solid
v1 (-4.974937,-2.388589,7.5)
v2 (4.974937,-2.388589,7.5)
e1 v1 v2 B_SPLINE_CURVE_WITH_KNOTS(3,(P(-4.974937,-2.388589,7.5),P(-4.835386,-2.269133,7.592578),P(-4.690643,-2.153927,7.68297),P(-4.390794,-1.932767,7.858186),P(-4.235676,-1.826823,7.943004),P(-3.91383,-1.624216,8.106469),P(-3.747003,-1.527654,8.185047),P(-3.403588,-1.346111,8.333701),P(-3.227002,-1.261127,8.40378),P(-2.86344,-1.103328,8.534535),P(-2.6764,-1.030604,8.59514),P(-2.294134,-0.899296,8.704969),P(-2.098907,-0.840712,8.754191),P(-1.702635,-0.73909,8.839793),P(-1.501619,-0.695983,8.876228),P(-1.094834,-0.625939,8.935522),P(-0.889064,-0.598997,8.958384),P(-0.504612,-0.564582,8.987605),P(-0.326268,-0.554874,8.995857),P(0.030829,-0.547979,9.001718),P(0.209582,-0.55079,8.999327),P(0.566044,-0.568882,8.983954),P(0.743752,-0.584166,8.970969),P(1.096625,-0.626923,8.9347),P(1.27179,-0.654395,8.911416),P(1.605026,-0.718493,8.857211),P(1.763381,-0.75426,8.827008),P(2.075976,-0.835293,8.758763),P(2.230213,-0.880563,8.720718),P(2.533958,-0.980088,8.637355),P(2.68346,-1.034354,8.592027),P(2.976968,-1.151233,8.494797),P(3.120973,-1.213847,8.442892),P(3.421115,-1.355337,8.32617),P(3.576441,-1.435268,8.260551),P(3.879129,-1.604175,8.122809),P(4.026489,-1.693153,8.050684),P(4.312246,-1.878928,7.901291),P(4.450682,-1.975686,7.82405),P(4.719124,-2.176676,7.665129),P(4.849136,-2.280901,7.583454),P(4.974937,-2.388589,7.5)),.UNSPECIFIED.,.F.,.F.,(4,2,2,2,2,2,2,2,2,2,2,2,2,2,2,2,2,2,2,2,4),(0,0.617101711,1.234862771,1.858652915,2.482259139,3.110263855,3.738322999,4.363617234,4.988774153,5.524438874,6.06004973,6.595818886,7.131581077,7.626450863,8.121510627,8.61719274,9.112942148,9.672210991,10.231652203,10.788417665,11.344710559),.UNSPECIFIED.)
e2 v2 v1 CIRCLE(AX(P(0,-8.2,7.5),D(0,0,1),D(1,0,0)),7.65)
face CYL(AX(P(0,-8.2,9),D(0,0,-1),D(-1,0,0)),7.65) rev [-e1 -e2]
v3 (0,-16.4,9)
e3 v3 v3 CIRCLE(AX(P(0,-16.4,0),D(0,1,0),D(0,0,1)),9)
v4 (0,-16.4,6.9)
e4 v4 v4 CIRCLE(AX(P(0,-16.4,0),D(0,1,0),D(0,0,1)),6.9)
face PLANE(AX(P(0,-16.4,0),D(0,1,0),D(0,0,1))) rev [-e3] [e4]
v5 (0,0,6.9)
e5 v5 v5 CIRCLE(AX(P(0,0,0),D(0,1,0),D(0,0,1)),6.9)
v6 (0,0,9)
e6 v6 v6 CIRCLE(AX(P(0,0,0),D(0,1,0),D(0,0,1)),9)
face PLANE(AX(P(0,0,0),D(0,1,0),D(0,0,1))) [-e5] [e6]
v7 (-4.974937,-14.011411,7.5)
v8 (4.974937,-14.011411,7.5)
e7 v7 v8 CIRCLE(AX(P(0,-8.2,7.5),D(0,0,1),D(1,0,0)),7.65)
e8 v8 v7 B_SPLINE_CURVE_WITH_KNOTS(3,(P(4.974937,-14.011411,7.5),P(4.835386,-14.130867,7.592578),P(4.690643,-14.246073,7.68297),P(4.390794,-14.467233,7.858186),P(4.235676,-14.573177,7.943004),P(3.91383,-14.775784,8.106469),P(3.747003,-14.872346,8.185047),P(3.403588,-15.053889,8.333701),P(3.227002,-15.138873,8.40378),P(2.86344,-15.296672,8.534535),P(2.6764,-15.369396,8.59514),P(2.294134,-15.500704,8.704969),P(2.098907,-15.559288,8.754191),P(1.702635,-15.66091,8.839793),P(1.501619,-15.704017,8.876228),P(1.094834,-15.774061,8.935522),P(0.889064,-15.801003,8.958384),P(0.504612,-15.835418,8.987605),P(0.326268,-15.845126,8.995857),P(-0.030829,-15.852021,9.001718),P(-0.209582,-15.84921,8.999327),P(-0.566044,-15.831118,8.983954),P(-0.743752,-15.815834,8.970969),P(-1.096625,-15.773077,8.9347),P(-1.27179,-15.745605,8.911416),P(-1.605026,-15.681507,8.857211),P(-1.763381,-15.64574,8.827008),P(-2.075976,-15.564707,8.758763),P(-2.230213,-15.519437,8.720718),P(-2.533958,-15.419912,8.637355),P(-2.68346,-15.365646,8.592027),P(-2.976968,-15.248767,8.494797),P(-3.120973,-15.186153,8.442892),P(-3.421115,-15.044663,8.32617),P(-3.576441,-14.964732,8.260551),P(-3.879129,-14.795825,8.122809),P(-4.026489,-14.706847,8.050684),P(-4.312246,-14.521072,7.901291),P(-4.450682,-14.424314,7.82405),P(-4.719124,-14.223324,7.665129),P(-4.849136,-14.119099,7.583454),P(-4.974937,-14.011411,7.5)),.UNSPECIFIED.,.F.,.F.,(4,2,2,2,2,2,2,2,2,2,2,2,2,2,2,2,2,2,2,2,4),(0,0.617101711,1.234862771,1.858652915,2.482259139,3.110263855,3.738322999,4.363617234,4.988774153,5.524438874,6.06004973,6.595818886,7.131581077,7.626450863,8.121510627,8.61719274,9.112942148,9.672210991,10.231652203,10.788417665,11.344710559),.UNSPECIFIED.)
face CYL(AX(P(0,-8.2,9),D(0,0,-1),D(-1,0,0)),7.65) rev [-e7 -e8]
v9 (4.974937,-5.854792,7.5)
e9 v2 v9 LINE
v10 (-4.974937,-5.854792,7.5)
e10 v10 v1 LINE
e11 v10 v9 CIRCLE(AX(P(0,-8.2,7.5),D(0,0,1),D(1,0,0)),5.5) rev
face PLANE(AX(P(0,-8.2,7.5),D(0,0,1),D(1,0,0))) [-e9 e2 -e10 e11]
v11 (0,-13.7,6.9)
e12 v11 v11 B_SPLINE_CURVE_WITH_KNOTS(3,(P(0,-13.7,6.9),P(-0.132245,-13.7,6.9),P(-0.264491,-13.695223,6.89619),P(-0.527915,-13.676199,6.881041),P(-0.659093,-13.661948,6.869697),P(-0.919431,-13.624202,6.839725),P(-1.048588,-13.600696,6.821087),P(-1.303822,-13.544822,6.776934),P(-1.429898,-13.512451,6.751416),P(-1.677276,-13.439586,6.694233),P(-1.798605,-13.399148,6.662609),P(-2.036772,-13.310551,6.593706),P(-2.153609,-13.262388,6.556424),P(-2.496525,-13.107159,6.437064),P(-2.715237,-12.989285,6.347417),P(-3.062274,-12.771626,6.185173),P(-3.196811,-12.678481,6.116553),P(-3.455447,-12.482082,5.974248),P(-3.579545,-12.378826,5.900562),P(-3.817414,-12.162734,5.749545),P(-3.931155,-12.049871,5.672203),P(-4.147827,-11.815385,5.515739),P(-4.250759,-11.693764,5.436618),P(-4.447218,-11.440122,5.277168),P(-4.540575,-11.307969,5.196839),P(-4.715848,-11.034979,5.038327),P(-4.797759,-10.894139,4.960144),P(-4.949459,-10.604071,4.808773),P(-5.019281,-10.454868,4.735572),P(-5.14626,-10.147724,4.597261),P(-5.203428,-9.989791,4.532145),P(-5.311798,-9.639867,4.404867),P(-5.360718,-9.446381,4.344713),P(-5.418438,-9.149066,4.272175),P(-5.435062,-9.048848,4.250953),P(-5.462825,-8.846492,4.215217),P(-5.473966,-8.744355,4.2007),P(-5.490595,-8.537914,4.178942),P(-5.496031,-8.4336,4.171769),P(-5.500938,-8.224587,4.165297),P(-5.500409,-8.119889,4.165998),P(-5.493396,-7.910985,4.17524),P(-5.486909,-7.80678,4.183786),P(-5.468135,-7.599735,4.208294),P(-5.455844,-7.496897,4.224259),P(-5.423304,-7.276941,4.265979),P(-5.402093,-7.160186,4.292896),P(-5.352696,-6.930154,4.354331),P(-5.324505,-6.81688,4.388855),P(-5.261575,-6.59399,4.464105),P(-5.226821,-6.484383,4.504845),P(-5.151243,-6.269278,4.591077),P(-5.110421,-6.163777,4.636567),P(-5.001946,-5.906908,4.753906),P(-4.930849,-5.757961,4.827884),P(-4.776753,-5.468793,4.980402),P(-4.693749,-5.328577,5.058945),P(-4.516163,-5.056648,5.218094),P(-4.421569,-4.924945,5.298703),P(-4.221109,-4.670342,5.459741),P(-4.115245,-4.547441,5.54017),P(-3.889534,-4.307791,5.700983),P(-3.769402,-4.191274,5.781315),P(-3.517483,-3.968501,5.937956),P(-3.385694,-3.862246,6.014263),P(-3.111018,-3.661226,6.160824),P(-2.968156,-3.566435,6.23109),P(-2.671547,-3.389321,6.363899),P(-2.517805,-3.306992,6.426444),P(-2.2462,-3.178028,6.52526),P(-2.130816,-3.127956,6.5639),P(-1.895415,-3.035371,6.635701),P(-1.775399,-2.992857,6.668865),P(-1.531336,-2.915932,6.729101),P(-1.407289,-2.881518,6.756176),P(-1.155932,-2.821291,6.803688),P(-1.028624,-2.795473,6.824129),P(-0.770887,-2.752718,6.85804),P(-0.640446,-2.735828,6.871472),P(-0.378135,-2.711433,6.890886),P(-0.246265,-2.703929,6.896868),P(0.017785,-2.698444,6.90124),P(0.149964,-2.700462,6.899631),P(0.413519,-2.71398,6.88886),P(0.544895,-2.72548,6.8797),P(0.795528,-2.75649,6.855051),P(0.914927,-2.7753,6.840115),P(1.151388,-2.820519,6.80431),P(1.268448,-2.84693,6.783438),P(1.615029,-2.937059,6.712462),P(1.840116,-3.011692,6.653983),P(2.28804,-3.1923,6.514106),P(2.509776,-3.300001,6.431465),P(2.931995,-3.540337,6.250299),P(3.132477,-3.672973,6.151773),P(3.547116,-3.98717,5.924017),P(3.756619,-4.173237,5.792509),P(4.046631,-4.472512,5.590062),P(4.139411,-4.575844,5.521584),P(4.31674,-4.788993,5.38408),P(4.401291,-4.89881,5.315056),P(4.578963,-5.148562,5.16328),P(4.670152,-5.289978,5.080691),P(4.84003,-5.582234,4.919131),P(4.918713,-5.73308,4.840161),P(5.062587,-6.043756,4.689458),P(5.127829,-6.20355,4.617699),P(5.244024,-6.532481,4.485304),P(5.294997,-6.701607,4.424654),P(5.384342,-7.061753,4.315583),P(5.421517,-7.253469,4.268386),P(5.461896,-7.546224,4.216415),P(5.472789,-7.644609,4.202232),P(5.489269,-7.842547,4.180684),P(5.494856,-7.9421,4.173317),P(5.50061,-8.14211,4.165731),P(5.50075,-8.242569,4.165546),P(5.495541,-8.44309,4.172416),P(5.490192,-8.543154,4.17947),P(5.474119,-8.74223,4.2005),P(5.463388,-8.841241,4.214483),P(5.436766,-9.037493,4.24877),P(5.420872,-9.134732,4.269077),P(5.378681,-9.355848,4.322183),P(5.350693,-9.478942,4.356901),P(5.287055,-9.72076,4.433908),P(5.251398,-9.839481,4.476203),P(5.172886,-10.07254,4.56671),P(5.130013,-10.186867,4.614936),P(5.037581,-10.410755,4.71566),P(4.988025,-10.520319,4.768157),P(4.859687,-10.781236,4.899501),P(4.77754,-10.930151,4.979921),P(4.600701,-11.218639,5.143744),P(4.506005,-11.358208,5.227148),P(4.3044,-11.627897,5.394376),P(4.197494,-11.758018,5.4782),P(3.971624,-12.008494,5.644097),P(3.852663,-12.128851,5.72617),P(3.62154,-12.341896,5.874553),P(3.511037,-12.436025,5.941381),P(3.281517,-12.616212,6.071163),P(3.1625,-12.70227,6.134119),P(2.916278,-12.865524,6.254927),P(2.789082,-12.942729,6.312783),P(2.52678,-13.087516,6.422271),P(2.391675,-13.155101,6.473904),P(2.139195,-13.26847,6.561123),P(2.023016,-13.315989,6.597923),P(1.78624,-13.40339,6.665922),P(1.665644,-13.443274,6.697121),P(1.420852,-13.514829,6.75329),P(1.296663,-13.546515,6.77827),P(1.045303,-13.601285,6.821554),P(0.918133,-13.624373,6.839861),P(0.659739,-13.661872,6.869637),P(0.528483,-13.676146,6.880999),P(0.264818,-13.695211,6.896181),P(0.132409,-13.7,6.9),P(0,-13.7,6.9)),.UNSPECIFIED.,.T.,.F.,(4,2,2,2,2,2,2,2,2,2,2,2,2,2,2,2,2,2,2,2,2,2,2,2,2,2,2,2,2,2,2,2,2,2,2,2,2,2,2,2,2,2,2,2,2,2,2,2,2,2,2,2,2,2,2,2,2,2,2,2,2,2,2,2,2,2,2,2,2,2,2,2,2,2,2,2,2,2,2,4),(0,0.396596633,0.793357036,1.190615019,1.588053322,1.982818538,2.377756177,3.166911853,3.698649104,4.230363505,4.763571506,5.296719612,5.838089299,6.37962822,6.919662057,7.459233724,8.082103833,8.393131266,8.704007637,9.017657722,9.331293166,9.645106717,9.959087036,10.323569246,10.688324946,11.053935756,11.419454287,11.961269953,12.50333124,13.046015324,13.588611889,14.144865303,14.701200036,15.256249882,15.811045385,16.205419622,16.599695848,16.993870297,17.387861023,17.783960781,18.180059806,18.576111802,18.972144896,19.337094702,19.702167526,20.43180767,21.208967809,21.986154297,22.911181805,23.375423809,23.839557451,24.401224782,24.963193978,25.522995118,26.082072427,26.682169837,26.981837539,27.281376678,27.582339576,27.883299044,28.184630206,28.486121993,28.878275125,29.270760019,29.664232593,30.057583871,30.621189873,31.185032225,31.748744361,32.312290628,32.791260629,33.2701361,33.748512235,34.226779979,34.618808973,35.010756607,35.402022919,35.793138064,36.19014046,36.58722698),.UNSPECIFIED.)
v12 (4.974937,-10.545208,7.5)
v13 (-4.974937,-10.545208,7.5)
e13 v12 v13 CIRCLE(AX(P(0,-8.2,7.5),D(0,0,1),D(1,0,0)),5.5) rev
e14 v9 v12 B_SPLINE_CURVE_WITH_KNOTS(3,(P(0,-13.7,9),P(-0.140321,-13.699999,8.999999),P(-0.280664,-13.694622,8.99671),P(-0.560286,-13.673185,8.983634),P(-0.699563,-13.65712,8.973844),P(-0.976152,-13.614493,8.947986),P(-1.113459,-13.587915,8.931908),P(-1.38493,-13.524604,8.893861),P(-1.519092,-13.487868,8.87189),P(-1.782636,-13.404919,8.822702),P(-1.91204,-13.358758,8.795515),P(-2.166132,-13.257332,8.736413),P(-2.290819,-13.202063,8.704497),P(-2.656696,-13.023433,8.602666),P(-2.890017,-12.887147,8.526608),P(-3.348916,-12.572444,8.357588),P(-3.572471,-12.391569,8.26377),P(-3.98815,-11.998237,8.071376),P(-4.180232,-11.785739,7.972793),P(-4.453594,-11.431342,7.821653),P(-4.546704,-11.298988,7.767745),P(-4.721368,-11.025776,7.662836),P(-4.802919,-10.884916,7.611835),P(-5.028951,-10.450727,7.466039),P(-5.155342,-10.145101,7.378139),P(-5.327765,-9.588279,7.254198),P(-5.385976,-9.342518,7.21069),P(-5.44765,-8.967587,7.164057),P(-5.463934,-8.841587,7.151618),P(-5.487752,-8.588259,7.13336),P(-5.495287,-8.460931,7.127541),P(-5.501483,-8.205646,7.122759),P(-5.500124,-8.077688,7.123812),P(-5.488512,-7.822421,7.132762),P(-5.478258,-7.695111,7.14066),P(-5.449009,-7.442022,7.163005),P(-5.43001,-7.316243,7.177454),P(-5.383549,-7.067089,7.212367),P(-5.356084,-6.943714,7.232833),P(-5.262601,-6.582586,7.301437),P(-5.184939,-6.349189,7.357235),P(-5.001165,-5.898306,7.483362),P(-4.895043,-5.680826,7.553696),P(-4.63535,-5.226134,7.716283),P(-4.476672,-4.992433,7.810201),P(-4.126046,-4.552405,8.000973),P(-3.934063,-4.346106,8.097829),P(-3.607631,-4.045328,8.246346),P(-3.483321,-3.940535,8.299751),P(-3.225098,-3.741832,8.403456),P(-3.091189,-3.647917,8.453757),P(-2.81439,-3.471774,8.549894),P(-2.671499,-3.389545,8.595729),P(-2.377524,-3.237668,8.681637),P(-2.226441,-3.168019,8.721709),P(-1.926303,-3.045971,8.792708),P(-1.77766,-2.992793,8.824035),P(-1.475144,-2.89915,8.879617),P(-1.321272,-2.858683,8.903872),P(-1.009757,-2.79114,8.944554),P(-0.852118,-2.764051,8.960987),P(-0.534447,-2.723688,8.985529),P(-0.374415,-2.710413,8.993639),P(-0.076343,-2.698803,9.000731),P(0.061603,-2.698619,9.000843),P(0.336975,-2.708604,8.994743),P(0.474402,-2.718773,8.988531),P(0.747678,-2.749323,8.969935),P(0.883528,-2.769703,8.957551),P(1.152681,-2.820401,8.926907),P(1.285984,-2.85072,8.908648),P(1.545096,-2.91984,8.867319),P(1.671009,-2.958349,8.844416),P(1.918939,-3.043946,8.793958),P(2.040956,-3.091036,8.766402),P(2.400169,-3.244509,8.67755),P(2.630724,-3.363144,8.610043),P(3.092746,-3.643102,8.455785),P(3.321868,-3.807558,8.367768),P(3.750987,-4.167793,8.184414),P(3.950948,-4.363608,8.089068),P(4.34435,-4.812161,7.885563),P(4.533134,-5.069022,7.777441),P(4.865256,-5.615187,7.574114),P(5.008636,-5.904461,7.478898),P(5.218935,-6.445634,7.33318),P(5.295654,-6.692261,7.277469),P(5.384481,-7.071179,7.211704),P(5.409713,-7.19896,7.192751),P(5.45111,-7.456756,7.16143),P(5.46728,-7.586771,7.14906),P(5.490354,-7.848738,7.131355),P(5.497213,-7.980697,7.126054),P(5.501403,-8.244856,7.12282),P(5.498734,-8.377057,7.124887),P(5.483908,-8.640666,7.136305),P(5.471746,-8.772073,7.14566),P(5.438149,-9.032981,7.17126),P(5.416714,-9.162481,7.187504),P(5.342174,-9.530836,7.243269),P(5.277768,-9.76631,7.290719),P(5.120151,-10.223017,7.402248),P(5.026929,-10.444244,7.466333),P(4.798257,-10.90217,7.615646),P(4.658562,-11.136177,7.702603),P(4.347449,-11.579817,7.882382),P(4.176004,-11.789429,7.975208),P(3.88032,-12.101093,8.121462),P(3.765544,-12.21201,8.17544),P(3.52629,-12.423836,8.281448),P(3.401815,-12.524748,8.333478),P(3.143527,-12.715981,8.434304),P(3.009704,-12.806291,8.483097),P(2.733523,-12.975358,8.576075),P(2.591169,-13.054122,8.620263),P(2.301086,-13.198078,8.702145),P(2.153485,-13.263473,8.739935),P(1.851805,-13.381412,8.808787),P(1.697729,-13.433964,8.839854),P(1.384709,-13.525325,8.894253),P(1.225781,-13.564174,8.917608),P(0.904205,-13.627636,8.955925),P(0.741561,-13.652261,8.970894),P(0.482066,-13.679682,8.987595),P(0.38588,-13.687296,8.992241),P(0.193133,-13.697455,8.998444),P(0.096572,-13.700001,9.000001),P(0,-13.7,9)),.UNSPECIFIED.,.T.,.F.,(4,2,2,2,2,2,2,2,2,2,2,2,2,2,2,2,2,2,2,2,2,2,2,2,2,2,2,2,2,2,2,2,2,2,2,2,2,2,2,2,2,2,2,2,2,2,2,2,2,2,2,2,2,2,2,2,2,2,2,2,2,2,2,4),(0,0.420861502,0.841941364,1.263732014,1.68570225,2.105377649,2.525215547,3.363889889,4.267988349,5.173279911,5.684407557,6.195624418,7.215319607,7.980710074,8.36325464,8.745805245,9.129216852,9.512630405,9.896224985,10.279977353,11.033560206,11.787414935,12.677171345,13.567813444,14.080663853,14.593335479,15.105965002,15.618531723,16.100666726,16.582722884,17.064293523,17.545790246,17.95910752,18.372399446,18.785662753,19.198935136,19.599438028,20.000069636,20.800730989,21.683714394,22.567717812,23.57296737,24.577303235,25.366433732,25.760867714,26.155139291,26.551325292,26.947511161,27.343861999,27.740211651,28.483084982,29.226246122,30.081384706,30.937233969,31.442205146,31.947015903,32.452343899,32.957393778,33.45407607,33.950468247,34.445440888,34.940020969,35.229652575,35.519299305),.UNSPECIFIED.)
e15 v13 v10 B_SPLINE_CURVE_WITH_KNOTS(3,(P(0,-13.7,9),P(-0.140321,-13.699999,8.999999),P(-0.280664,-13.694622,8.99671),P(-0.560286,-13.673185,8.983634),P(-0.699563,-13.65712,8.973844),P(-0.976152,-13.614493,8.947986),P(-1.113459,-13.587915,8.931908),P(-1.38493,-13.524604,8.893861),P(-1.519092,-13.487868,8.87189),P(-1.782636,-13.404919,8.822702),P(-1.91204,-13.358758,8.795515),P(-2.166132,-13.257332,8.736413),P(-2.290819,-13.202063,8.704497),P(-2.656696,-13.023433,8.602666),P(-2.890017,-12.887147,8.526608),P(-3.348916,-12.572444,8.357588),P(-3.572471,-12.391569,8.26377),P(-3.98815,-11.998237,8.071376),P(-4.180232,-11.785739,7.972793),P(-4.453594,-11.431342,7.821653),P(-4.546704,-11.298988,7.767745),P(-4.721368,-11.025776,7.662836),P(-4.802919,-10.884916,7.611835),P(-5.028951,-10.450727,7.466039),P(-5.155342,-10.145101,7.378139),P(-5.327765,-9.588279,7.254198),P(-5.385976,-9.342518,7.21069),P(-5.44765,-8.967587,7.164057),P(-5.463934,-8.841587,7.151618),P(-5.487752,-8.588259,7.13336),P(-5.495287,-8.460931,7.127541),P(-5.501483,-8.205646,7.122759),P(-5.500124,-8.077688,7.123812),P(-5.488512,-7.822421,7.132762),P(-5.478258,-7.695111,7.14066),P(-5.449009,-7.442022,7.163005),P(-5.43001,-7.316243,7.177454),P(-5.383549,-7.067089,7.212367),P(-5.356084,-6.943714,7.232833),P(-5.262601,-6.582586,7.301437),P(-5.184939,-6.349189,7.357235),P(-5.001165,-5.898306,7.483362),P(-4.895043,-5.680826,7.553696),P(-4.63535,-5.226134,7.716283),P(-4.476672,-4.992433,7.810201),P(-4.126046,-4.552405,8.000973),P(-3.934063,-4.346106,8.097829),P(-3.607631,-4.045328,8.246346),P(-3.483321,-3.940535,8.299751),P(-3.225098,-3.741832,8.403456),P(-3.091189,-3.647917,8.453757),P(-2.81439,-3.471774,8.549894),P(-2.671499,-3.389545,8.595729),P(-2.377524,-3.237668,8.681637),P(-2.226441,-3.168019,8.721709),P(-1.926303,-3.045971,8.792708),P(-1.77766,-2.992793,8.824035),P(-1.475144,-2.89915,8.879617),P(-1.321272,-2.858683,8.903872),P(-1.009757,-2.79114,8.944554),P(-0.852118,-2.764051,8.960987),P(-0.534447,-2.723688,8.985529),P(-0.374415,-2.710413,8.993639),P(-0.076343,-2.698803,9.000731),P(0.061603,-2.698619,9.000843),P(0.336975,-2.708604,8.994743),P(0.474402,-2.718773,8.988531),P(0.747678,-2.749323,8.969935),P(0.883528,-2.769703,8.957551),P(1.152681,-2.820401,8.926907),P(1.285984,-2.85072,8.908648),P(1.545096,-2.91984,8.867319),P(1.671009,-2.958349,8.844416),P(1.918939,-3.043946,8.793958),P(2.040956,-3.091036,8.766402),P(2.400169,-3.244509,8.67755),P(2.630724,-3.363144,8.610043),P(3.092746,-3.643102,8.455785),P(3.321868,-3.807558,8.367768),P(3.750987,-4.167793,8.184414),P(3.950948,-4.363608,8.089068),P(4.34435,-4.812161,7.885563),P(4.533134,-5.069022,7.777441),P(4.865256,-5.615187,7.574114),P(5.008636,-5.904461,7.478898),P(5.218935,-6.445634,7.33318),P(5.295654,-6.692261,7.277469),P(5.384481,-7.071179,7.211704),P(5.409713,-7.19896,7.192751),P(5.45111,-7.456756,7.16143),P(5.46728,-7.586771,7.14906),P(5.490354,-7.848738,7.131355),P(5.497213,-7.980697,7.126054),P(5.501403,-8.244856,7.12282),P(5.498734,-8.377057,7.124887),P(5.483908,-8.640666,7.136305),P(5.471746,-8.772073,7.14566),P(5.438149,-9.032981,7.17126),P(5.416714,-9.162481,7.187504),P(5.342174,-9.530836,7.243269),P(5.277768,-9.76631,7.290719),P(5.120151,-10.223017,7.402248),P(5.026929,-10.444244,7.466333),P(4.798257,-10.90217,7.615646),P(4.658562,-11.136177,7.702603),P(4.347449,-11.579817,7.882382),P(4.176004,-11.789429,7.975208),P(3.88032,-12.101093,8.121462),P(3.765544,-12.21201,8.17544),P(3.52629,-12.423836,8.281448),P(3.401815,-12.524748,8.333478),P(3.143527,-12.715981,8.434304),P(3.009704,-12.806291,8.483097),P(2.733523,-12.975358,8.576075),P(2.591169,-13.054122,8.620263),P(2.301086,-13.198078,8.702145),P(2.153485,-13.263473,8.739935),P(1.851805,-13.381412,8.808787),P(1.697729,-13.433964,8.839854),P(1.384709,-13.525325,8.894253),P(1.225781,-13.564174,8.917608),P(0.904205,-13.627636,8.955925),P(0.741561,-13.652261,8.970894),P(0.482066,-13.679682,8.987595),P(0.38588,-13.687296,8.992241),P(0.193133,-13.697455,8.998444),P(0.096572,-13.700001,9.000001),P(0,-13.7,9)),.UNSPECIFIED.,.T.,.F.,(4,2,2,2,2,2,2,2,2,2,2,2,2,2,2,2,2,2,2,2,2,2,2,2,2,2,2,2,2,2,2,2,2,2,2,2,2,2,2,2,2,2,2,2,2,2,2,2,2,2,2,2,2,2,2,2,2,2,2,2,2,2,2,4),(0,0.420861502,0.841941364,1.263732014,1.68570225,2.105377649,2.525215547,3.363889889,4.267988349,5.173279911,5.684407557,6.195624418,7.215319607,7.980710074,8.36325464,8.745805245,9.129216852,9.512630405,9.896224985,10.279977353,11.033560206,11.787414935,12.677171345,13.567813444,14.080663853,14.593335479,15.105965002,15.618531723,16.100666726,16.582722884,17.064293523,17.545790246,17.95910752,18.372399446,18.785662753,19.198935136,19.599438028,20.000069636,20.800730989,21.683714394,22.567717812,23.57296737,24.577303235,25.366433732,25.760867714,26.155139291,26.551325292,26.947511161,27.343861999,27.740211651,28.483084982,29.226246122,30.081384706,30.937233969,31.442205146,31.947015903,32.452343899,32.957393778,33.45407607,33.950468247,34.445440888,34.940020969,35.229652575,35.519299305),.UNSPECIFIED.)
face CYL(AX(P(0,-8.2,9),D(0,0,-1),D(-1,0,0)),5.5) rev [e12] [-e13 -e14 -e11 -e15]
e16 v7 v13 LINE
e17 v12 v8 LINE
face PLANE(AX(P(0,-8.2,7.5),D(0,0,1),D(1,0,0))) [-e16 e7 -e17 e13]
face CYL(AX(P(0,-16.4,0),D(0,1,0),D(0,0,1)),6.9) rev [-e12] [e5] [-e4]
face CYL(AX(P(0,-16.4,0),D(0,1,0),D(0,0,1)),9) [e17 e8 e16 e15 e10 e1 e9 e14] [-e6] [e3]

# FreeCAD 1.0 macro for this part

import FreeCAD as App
import Part
import Sketcher

V = App.Vector

doc = App.newDocument("Part")
body = doc.addObject("PartDesign::Body", "Body")

sketch1 = body.newObject("Sketcher::SketchObject", "Sketch")
sketch1.AttachmentSupport = (doc.getObject("XZ_Plane"), [""])
sketch1.MapMode = "FlatFace"
sketch1.addGeometry([
    Part.Circle(V(0, 0, 0), V(0, 0, 1), 9),
    Part.Circle(V(0, 0, 0), V(0, 0, 1), 7),
], False)
sketch1.addConstraint([
    Sketcher.Constraint("Coincident", 0, 3, -1, 1),
    Sketcher.Constraint("Coincident", 1, 3, -1, 1),
    Sketcher.Constraint("Diameter", 0, 18.0),
    Sketcher.Constraint("Diameter", 1, 13.8),
])
pad1 = body.newObject("PartDesign::Pad", "Pad")
pad1.Profile = sketch1
pad1.Length = 16.4

sketch2 = body.newObject("Sketcher::SketchObject", "Sketch001")
sketch2.AttachmentSupport = (doc.getObject("XY_Plane"), [""])
sketch2.MapMode = "FlatFace"
sketch2.AttachmentOffset = App.Placement(V(0, 0, 7.5), App.Rotation())
sketch2.addGeometry(Part.Circle(V(0, -8, 0), V(0, 0, 1), 8), False)
sketch2.addConstraint([
    Sketcher.Constraint("PointOnObject", 0, 3, -2),
    Sketcher.Constraint("Diameter", 0, 15.3),
    Sketcher.Constraint("DistanceY", 0, 3, -1, 1, 8.2),
])
pocket1 = body.newObject("PartDesign::Pocket", "Pocket")
pocket1.Profile = sketch2
pocket1.Type = "ThroughAll"
pocket1.Reversed = True

sketch3 = body.newObject("Sketcher::SketchObject", "Sketch002")
sketch3.AttachmentSupport = (doc.getObject("XY_Plane"), [""])
sketch3.MapMode = "FlatFace"
sketch3.AttachmentOffset = App.Placement(V(0, 0, 7.5), App.Rotation())
sketch3.addGeometry(Part.Circle(V(0, -8, 0), V(0, 0, 1), 6), False)
sketch3.addConstraint([
    Sketcher.Constraint("PointOnObject", 0, 3, -2),
    Sketcher.Constraint("Diameter", 0, 11.0),
    Sketcher.Constraint("DistanceY", 0, 3, -1, 1, 8.2),
])
pocket2 = body.newObject("PartDesign::Pocket", "Pocket001")
pocket2.Profile = sketch3
pocket2.Type = "TwoLengths"
pocket2.Length = 25.944138
pocket2.Length2 = 7
pocket2.Reversed = True

doc.recompute()
